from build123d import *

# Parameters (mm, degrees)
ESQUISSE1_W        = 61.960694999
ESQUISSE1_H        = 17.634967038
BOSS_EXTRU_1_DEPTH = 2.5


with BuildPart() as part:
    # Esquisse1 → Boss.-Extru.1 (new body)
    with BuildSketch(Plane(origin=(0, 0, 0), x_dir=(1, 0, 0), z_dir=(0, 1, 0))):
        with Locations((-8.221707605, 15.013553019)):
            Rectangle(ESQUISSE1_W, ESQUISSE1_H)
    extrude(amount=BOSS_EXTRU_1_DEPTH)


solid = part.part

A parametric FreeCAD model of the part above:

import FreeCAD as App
import Part
import Sketcher


def add_polygon(sketch, points):
    """Adds a closed chain of lines whose ends are joined by coincident constraints."""
    first, n = sketch.GeometryCount, len(points)
    for a, b in zip(points, points[1:] + points[:1]):
        sketch.addGeometry(Part.LineSegment(App.Vector(*a, 0), App.Vector(*b, 0)), False)
    for i in range(n):
        sketch.addConstraint(Sketcher.Constraint("Coincident", first + i, 2, first + (i + 1) % n, 1))

doc = App.newDocument("Part")
params = doc.addObject("Spreadsheet::Sheet", "Params")
for row, (alias, value) in enumerate([
    ("pad1_length", "2.5 mm"),
], start=1):
    params.set(f"A{row}", alias)
    params.set(f"B{row}", "=" + value)
    params.setAlias(f"B{row}", alias)

body = doc.addObject("PartDesign::Body", "Body")

# Sketch on XZ plane
sketch1 = body.newObject("Sketcher::SketchObject", "Sketch")
sketch1.AttachmentSupport = (doc.getObject("XZ_Plane"), [""])
sketch1.MapMode = "FlatFace"
add_polygon(sketch1, [(-39.202055, -23.831037), (-39.202055, -6.19607), (22.75864, -6.19607), (22.75864, -23.831037)])  # lines 0-3
sketch1.addConstraint(Sketcher.Constraint("Vertical", 0))
sketch1.addConstraint(Sketcher.Constraint("Horizontal", 1))
sketch1.addConstraint(Sketcher.Constraint("Vertical", 2))
sketch1.addConstraint(Sketcher.Constraint("Horizontal", 3))
sketch1.addConstraint(Sketcher.Constraint("DistanceX", 1, 1, 1, 2, 61.960695))
sketch1.addConstraint(Sketcher.Constraint("DistanceY", 0, 1, 0, 2, 17.634967))
sketch1.addConstraint(Sketcher.Constraint("DistanceY", 0, 2, -1, 1, 6.19607))
sketch1.addConstraint(Sketcher.Constraint("DistanceX", -1, 1, 1, 2, 22.75864))
pad1 = body.newObject("PartDesign::Pad", "Pad")
pad1.Profile = sketch1
pad1.setExpression("Length", "Params.pad1_length")
pad1.Reversed = True

doc.recompute()
